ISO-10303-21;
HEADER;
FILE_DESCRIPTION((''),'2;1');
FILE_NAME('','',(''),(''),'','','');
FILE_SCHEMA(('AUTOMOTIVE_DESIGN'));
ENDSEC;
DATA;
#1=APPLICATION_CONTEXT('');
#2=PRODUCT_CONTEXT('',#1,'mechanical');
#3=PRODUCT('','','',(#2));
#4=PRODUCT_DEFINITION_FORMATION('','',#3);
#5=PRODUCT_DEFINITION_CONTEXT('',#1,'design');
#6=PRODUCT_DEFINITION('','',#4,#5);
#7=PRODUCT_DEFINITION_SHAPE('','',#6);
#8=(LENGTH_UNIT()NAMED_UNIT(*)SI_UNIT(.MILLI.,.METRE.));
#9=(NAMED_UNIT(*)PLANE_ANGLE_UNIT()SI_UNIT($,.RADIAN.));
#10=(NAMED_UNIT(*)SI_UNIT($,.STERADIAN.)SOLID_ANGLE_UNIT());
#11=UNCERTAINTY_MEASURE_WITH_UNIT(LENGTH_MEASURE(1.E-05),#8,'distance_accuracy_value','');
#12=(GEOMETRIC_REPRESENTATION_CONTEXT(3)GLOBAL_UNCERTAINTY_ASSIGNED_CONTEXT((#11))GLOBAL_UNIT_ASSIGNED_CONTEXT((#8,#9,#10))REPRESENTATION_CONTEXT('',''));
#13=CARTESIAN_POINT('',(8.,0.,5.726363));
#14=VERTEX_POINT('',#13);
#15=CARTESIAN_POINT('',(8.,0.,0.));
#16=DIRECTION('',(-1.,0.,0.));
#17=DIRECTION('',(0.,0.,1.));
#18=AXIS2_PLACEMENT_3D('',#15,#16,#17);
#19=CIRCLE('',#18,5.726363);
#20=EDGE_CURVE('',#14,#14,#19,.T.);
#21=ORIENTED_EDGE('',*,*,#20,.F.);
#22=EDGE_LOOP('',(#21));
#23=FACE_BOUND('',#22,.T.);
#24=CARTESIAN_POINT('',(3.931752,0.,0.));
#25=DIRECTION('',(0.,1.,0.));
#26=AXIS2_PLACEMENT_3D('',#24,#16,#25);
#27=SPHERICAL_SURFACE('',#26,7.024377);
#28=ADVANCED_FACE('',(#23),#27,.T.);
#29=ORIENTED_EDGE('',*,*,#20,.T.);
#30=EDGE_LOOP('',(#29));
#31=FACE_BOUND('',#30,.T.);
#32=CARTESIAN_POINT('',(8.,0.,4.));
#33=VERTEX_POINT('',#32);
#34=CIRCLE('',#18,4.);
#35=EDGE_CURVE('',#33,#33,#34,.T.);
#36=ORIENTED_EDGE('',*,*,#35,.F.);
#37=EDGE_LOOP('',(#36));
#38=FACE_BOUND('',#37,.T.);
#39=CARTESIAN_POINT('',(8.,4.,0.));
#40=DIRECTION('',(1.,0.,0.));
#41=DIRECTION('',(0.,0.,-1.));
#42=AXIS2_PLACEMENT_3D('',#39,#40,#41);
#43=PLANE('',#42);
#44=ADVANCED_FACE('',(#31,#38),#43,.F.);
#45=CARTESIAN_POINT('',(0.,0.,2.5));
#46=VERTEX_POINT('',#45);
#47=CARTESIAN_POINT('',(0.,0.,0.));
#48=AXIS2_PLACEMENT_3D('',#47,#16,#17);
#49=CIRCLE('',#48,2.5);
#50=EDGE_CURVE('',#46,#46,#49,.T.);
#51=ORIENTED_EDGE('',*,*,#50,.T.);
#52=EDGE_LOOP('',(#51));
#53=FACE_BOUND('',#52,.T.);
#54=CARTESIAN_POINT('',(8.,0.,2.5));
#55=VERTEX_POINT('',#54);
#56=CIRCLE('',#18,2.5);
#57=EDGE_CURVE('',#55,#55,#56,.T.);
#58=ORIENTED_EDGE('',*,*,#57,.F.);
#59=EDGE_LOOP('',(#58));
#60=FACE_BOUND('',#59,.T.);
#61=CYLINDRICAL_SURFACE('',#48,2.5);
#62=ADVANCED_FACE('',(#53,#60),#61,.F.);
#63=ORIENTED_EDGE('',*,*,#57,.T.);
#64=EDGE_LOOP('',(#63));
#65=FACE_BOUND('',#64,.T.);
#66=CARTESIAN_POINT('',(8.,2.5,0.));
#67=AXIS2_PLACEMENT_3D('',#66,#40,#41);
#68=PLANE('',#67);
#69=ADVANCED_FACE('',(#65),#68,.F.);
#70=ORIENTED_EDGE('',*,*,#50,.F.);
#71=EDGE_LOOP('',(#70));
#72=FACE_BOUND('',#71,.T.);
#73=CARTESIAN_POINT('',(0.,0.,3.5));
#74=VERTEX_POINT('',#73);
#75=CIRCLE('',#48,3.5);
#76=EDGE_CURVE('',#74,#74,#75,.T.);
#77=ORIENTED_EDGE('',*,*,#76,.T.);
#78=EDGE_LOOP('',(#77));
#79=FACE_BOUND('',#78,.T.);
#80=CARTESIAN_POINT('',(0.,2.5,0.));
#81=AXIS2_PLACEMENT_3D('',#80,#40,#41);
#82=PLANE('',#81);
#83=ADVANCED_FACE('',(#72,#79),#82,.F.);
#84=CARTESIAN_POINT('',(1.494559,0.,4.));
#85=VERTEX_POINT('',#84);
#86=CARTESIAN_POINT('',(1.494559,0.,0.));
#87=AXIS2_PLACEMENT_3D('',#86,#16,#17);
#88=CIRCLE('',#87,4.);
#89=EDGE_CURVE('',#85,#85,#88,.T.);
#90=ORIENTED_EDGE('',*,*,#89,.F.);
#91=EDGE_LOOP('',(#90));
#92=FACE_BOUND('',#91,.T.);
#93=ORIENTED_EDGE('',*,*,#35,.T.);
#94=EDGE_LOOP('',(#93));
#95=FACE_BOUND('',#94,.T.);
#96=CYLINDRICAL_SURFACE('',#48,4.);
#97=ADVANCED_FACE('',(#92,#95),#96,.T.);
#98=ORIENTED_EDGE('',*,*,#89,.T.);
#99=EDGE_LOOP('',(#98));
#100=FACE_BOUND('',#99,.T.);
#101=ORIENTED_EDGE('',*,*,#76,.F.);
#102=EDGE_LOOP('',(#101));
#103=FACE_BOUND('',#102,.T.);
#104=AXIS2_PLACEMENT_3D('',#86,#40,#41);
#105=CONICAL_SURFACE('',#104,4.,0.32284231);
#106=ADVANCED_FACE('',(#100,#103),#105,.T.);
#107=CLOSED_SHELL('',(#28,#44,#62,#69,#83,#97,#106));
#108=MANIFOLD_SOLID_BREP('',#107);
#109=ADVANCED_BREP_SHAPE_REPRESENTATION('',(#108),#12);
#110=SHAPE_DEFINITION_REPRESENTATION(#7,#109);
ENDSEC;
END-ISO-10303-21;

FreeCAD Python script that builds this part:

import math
import FreeCAD as App
import Part
import Sketcher
from FreeCAD import Vector

doc = App.newDocument("Part")
body = doc.addObject("PartDesign::Body", "Body")

# Sketch on XY plane
sketch1 = doc.addObject("Sketcher::SketchObject", "Sketch")
body.addObject(sketch1)
sketch1.AttachmentSupport = (doc.XY_Plane, [""])
sketch1.MapMode = "FlatFace"
sketch1.addGeometry([
    Part.LineSegment(Vector(0, 3.5, 0), Vector(0, 2.5, 0)),  # 0
    Part.LineSegment(Vector(0, 2.5, 0), Vector(8, 2.5, 0)),  # 1
    Part.LineSegment(Vector(8, 2.5, 0), Vector(8, 0, 0)),  # 2
    Part.LineSegment(Vector(8, 0, 0), Vector(11, 0, 0)),  # 3
    Part.ArcOfCircle(Part.Circle(Vector(3.9, 0, 0), Vector(0, 0, 1), 7), math.radians(0), math.radians(55)),  # 4
    Part.LineSegment(Vector(8, 5.7, 0), Vector(8, 4, 0)),  # 5
    Part.LineSegment(Vector(8, 4, 0), Vector(1.5, 4, 0)),  # 6
    Part.LineSegment(Vector(1.5, 4, 0), Vector(0, 3.5, 0)),  # 7
], False)
sketch1.addConstraint([
    Sketcher.Constraint("Coincident", 0, 2, 1, 1),
    Sketcher.Constraint("Coincident", 1, 2, 2, 1),
    Sketcher.Constraint("Coincident", 2, 2, 3, 1),
    Sketcher.Constraint("Coincident", 3, 2, 4, 1),
    Sketcher.Constraint("Coincident", 4, 2, 5, 1),
    Sketcher.Constraint("Coincident", 5, 2, 6, 1),
    Sketcher.Constraint("Coincident", 6, 2, 7, 1),
    Sketcher.Constraint("Coincident", 7, 2, 0, 1),
    Sketcher.Constraint("Vertical", 0),
    Sketcher.Constraint("Horizontal", 1),
    Sketcher.Constraint("Vertical", 2),
    Sketcher.Constraint("Horizontal", 3),
    Sketcher.Constraint("Vertical", 5),
    Sketcher.Constraint("Horizontal", 6),
    Sketcher.Constraint("PointOnObject", 4, 3, -1),
    Sketcher.Constraint("PointOnObject", 0, 2, -2),
    Sketcher.Constraint("PointOnObject", 2, 2, -1),
    Sketcher.Constraint("Vertical", 2, 2, 4, 2),
    Sketcher.Constraint("DistanceX", 1, 1, 1, 2, 8.0),
    Sketcher.Constraint("DistanceY", 0, 2, 0, 1, 1.0),
    Sketcher.Constraint("DistanceY", 2, 2, 2, 1, 2.5),
    Sketcher.Constraint("DistanceY", -1, 1, 5, 2, 4.0),
    Sketcher.Constraint("Radius", 4, 7.024377),
    Sketcher.Constraint("DistanceX", 3, 1, 3, 2, 2.956129),
    Sketcher.Constraint("DistanceX", 6, 2, 6, 1, 6.505441),
])
revolution = doc.addObject("PartDesign::Revolution", "Revolution")
body.addObject(revolution)
revolution.Profile = sketch1
revolution.ReferenceAxis = (sketch1, ["H_Axis"])
revolution.Angle = 360

doc.recompute()
